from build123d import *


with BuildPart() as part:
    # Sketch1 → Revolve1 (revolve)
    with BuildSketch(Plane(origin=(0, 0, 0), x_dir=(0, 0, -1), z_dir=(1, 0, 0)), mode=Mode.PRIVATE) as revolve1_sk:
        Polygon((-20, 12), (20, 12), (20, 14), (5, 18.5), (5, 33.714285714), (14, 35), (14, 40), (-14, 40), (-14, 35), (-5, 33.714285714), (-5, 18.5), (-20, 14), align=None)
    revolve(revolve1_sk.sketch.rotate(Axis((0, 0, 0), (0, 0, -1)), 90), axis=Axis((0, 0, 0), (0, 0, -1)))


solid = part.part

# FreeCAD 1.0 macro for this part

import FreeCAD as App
import Part
import Sketcher
from FreeCAD import Vector
Q = App.Units.Quantity


def add_polygon(sketch, points):
    """Adds a closed chain of lines whose ends are joined by coincident constraints."""
    first, n = sketch.GeometryCount, len(points)
    for a, b in zip(points, points[1:] + points[:1]):
        sketch.addGeometry(Part.LineSegment(App.Vector(*a, 0), App.Vector(*b, 0)), False)
    for i in range(n):
        sketch.addConstraint(Sketcher.Constraint("Coincident", first + i, 2, first + (i + 1) % n, 1))

doc = App.newDocument("Part")
params = doc.addObject("Spreadsheet::Sheet", "Params")
for row, (alias, value) in enumerate([
    ("sketch1_width", "2 mm"),
    ("sketch1_width2", "5 mm"),
    ("sketch1_height", "40 mm"),
    ("sketch1_height2", "28 mm"),
    ("revolution_angle", "360 deg"),
], start=1):
    params.set(f"A{row}", alias)
    params.set(f"B{row}", "=" + value)
    params.setAlias(f"B{row}", alias)

body = doc.addObject("PartDesign::Body", "Body")

# Sketch on YZ plane
sketch1 = doc.addObject("Sketcher::SketchObject", "Sketch")
body.addObject(sketch1)
sketch1.AttachmentSupport = (doc.YZ_Plane, [""])
sketch1.MapMode = "FlatFace"
add_polygon(sketch1, [(12, 20), (12, -20), (14, -20), (18.5, -5), (33.7, -5), (35, -14), (40, -14), (40, 14), (35, 14), (33.7, 5), (18.5, 5), (14, 20)])  # lines 0-11
sketch1.addConstraint(Sketcher.Constraint("Vertical", 0))
sketch1.addConstraint(Sketcher.Constraint("Horizontal", 1))
sketch1.addConstraint(Sketcher.Constraint("Horizontal", 3))
sketch1.addConstraint(Sketcher.Constraint("Horizontal", 5))
sketch1.addConstraint(Sketcher.Constraint("Vertical", 6))
sketch1.addConstraint(Sketcher.Constraint("Horizontal", 7))
sketch1.addConstraint(Sketcher.Constraint("Horizontal", 9))
sketch1.addConstraint(Sketcher.Constraint("Horizontal", 11))
sketch1.addConstraint(Sketcher.Constraint("Symmetric", 4, 2, 7, 2, -1))
sketch1.addConstraint(Sketcher.Constraint("Symmetric", 3, 2, 8, 2, -1))
sketch1.addConstraint(Sketcher.Constraint("Symmetric", 1, 2, 10, 2, -1))
sketch1.addConstraint(Sketcher.Constraint("Vertical", 2, 2, 9, 2))
sketch1.addConstraint(Sketcher.Constraint("DistanceX", 1, 1, 1, 2, Q("2 mm")))
sketch1.addConstraint(Sketcher.Constraint("DistanceX", 5, 1, 5, 2, Q("5 mm")))
sketch1.addConstraint(Sketcher.Constraint("DistanceY", 0, 2, 0, 1, Q("40 mm")))
sketch1.addConstraint(Sketcher.Constraint("DistanceY", 6, 1, 6, 2, Q("28 mm")))
sketch1.addConstraint(Sketcher.Constraint("DistanceX", -1, 1, 0, 2, Q("12 mm")))
sketch1.addConstraint(Sketcher.Constraint("DistanceY", 2, 2, -1, 1, Q("5 mm")))
sketch1.addConstraint(Sketcher.Constraint("DistanceX", -1, 1, 4, 2, Q("35 mm")))
sketch1.addConstraint(Sketcher.Constraint("DistanceX", -1, 1, 2, 2, Q("18.5 mm")))
sketch1.addConstraint(Sketcher.Constraint("DistanceX", 3, 1, 3, 2, Q("15.214286 mm")))
sketch1.setExpression("Constraints[24]", "Params.sketch1_width")
sketch1.setExpression("Constraints[25]", "Params.sketch1_width2")
sketch1.setExpression("Constraints[26]", "Params.sketch1_height")
sketch1.setExpression("Constraints[27]", "Params.sketch1_height2")
revolution = doc.addObject("PartDesign::Revolution", "Revolution")
body.addObject(revolution)
revolution.Profile = sketch1
revolution.ReferenceAxis = (sketch1, ["V_Axis"])
revolution.setExpression("Angle", "Params.revolution_angle")

doc.recompute()
